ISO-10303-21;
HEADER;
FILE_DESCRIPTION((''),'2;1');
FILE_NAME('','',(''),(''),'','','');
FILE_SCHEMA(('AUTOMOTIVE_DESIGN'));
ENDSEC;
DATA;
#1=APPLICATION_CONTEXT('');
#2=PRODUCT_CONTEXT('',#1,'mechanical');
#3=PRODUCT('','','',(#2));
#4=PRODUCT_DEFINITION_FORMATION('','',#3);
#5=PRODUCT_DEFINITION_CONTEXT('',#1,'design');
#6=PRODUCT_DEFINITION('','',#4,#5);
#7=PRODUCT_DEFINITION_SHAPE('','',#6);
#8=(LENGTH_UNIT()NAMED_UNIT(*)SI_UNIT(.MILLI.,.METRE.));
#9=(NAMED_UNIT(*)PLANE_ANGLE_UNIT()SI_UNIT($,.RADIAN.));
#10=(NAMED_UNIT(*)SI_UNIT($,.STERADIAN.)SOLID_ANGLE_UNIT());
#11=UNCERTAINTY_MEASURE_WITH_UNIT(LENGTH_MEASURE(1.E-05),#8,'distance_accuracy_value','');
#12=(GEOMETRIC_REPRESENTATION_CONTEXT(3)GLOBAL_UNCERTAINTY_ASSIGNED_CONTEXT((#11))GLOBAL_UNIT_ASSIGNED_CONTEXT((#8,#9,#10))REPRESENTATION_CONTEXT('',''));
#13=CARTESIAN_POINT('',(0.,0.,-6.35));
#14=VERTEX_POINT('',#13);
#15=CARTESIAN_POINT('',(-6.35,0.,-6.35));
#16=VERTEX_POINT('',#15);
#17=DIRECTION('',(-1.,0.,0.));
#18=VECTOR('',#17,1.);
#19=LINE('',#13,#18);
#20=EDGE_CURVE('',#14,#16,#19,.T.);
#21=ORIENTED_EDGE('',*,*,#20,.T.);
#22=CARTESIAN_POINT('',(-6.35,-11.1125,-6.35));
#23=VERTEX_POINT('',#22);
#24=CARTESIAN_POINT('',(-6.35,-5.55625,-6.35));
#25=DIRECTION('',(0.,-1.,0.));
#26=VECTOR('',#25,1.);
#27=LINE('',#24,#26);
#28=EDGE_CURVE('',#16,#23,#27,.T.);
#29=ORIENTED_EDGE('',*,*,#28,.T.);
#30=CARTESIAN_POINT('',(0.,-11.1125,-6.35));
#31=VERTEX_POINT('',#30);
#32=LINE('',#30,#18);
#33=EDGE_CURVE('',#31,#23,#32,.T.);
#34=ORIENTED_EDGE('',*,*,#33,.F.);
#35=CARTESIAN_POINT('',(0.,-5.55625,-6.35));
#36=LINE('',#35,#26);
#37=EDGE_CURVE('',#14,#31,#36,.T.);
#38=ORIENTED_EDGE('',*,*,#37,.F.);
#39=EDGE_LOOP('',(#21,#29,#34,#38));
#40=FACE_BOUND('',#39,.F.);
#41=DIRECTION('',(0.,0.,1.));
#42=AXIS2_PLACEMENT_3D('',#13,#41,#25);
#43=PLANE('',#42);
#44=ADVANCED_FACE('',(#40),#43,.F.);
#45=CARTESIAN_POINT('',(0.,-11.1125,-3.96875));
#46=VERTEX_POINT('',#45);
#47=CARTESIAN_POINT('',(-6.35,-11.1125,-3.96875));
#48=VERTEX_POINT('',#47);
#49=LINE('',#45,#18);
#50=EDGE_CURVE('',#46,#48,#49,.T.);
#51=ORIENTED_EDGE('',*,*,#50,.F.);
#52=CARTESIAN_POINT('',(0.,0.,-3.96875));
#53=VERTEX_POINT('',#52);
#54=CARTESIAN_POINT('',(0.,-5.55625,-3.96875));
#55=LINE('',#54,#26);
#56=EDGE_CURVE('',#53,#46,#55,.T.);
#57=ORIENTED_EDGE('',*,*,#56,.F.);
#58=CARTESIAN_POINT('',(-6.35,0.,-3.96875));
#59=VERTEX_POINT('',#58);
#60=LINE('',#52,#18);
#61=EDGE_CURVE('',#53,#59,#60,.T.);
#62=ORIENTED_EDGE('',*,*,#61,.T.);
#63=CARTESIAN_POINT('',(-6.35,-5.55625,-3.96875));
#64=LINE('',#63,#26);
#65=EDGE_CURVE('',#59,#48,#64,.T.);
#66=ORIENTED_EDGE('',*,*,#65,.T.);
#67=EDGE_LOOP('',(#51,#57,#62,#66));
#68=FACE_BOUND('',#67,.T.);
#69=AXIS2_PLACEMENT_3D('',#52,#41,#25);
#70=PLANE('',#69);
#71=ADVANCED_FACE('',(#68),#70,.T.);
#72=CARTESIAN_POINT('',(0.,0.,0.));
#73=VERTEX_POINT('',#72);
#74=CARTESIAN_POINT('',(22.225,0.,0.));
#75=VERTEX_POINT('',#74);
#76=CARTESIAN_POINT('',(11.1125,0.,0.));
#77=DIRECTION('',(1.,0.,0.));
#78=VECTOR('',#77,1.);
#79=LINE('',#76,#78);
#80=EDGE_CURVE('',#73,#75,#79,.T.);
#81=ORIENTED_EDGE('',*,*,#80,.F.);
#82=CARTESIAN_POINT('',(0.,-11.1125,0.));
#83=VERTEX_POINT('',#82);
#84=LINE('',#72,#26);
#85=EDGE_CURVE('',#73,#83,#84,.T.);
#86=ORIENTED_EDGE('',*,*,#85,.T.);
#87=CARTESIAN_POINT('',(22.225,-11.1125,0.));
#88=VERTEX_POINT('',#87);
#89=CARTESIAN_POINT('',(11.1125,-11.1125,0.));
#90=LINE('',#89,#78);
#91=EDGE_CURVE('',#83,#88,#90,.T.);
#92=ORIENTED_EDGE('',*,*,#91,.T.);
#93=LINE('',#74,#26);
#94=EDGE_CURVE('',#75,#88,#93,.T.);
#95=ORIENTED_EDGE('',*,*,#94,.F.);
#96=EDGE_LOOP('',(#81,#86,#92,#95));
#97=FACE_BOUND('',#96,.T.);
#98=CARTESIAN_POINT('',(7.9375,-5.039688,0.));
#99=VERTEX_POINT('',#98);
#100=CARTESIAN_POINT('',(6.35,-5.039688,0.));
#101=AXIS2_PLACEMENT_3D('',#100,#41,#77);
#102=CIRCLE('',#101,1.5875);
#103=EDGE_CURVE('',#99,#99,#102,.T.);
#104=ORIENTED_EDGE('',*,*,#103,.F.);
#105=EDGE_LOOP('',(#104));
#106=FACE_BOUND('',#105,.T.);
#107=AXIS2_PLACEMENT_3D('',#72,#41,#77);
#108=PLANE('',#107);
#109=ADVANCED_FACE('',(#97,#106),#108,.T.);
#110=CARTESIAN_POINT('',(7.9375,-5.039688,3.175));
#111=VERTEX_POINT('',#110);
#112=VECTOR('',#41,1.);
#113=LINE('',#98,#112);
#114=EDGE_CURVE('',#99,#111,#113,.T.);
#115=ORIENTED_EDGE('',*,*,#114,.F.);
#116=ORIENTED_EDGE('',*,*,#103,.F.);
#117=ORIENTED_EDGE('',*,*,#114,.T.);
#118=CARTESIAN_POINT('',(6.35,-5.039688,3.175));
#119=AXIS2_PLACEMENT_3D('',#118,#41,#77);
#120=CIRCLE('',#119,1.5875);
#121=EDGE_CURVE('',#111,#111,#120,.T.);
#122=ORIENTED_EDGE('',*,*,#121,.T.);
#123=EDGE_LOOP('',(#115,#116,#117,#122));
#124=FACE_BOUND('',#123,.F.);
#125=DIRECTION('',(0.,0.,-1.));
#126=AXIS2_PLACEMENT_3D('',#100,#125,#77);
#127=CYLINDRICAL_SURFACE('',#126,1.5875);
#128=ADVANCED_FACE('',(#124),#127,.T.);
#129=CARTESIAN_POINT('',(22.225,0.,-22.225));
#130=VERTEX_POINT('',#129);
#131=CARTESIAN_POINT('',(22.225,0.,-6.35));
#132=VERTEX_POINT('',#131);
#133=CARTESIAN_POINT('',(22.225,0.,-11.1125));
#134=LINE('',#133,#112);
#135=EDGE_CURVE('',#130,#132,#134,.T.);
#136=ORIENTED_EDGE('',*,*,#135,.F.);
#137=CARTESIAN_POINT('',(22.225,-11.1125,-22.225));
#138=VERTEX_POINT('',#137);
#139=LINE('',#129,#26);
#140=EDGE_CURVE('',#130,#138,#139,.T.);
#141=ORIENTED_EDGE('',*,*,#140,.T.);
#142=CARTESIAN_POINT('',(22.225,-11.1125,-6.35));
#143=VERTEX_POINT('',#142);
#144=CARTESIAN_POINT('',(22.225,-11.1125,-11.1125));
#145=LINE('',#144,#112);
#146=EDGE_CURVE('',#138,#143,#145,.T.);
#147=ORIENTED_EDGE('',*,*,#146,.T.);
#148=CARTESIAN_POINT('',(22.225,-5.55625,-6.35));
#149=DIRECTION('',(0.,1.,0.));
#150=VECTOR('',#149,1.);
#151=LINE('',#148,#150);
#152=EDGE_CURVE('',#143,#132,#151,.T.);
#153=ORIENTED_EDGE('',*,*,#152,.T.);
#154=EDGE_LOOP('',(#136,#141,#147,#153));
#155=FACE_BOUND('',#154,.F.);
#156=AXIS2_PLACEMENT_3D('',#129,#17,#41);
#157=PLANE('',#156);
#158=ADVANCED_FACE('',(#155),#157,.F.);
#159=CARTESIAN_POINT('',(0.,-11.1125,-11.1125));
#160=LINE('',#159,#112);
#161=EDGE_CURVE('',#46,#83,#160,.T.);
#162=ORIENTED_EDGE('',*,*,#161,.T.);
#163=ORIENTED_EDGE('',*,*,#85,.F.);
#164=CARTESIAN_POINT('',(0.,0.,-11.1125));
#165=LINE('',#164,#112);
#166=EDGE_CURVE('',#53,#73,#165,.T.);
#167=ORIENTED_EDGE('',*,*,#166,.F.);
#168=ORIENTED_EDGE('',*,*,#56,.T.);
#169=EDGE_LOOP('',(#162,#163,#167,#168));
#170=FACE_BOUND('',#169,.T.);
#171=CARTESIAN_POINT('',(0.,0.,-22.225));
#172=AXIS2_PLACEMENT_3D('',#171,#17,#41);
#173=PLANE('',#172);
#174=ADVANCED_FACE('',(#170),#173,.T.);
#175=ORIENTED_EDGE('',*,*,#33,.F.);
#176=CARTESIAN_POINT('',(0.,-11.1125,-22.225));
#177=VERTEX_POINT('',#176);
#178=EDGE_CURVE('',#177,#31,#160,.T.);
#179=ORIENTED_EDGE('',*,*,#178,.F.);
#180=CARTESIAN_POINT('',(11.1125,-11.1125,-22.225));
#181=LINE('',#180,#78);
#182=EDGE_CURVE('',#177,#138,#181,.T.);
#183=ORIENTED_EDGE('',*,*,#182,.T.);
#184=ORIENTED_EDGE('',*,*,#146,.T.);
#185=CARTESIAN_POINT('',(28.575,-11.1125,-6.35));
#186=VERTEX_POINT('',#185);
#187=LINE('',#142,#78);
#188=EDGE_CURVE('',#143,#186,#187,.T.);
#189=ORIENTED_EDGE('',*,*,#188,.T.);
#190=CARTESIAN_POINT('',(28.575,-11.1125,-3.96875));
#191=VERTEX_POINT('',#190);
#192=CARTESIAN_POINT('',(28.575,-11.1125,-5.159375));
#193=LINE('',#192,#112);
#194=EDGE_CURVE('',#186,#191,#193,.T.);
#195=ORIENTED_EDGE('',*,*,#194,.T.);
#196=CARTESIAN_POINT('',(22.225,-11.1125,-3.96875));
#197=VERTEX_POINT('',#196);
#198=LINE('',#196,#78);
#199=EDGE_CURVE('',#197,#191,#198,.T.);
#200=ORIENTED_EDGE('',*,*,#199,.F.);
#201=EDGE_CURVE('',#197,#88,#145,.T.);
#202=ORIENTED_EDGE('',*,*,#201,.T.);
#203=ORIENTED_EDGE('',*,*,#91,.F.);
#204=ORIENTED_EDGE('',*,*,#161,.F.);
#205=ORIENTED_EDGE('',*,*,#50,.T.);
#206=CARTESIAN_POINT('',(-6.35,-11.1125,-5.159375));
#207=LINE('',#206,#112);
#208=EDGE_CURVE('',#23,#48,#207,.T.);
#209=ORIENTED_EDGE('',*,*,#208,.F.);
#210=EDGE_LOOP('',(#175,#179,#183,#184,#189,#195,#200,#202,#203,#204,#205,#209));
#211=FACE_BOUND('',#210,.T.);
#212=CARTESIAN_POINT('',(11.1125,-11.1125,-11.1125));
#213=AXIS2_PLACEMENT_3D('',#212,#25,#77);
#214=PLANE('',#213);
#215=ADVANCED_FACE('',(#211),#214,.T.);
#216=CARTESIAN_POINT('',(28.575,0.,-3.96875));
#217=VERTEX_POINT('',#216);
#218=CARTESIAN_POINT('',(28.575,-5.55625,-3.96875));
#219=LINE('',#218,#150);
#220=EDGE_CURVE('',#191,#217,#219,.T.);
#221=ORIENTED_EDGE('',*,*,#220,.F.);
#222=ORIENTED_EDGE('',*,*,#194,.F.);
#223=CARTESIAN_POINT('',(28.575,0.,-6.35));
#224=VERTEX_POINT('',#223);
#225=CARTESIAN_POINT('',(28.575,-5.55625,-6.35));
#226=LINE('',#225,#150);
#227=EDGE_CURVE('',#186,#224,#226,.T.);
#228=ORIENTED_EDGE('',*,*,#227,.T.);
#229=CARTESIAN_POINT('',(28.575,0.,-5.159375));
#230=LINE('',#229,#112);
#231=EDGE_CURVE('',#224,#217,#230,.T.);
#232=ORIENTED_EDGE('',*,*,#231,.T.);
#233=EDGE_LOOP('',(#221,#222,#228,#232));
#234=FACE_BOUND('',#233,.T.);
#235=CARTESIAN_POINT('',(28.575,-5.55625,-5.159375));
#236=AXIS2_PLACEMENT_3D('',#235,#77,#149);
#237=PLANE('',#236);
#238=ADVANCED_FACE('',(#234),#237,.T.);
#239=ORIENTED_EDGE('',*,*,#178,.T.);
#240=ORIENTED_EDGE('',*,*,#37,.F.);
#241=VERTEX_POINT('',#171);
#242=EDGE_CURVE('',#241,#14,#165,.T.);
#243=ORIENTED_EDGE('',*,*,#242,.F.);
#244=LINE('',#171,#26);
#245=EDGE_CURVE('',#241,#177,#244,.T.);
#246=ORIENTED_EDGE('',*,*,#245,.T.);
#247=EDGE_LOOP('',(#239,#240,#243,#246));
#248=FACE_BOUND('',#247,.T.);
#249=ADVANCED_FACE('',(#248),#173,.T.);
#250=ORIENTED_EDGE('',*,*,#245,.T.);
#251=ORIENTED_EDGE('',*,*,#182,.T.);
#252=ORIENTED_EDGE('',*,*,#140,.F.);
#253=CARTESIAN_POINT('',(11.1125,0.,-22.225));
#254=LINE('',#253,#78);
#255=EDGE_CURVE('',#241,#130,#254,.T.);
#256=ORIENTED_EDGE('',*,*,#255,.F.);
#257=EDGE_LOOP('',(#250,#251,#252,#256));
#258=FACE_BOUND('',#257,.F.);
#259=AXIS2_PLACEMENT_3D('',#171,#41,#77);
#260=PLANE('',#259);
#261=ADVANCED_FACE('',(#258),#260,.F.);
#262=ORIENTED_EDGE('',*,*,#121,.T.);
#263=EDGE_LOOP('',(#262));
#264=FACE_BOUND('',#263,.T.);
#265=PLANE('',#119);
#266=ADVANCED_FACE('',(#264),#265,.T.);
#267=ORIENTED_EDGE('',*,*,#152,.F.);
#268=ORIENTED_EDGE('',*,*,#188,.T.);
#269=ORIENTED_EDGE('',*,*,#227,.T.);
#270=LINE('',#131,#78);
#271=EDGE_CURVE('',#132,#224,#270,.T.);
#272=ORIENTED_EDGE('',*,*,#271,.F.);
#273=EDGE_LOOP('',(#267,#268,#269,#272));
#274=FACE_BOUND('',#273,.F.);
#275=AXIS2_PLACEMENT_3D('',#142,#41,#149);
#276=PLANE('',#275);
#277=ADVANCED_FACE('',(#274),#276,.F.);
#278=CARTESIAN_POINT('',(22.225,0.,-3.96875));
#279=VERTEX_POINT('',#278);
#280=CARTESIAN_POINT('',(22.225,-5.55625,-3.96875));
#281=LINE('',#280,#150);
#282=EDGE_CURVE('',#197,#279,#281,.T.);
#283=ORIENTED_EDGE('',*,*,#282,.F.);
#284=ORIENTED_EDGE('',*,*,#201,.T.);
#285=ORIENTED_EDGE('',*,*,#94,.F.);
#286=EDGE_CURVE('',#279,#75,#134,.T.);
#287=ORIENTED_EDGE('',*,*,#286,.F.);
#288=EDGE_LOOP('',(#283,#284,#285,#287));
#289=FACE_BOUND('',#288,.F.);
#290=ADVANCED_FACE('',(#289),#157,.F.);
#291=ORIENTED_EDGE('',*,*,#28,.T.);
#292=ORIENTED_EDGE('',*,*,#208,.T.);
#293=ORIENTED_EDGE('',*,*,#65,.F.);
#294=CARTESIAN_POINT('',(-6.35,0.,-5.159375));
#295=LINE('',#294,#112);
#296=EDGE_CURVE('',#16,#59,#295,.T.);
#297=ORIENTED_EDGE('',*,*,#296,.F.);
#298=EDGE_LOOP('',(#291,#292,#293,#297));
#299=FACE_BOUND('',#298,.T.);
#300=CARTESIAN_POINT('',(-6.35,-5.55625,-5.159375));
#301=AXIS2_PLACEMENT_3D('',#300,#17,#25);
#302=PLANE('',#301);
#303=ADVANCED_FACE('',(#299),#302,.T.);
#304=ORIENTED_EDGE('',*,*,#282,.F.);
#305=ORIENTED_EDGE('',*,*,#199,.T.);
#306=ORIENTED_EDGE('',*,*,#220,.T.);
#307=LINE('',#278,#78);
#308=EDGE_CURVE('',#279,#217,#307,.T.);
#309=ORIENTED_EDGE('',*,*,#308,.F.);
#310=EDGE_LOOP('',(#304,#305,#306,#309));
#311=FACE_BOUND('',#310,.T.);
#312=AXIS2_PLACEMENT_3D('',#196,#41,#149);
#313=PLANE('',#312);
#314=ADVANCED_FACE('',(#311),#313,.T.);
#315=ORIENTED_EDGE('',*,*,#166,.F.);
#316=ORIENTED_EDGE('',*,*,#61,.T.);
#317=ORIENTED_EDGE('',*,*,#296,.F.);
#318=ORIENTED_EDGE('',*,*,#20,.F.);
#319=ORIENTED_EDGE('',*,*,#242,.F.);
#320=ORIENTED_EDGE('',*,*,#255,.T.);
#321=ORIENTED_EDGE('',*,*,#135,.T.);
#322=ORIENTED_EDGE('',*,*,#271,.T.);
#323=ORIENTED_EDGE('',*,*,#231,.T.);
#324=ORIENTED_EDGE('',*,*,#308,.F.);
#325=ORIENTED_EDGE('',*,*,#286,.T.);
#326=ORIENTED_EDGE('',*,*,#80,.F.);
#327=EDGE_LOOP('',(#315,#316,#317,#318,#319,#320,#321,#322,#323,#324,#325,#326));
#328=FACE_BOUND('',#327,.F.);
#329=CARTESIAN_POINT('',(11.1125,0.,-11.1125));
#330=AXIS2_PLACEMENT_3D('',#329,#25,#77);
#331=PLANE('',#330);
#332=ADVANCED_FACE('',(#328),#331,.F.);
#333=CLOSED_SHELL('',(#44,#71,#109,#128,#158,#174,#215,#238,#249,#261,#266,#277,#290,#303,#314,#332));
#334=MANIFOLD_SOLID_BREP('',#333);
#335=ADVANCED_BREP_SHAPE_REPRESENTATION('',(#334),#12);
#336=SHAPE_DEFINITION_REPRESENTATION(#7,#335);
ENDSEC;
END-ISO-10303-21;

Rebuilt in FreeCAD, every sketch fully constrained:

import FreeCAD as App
import Part
import Sketcher
Q = App.Units.Quantity


def add_polygon(sketch, points):
    """Adds a closed chain of lines whose ends are joined by coincident constraints."""
    first, n = sketch.GeometryCount, len(points)
    for a, b in zip(points, points[1:] + points[:1]):
        sketch.addGeometry(Part.LineSegment(App.Vector(*a, 0), App.Vector(*b, 0)), False)
    for i in range(n):
        sketch.addConstraint(Sketcher.Constraint("Coincident", first + i, 2, first + (i + 1) % n, 1))

doc = App.newDocument("Part")
body = doc.addObject("PartDesign::Body", "Body")

# Sketch on XZ plane
sketch1 = body.newObject("Sketcher::SketchObject", "Sketch")
sketch1.AttachmentSupport = (doc.getObject("XZ_Plane"), [""])
sketch1.MapMode = "FlatFace"
add_polygon(sketch1, [(0, 0), (0, -22.225), (22.225, -22.225), (22.225, 0)])  # lines 0-3
sketch1.addConstraint([
    Sketcher.Constraint("Vertical", 0),
    Sketcher.Constraint("Horizontal", 1),
    Sketcher.Constraint("Vertical", 2),
    Sketcher.Constraint("Horizontal", 3),
    Sketcher.Constraint("Coincident", 3, 2, -1, 1),
    Sketcher.Constraint("Equal", 3, 0),
    Sketcher.Constraint("DistanceX", 1, 1, 1, 2, Q("0.875 in")),
])
pad1 = body.newObject("PartDesign::Pad", "Pad")
pad1.Profile = sketch1
pad1.Length = Q("0.4375 in")

# Sketch on YZ plane
sketch2 = body.newObject("Sketcher::SketchObject", "Sketch001")
sketch2.AttachmentSupport = (doc.getObject("YZ_Plane"), [""])
sketch2.MapMode = "FlatFace"
sketch2.AttachmentOffset = App.Placement(App.Vector(0, 0, 0.875 * 25.4), App.Rotation())
add_polygon(sketch2, [(-11.1125, -3.96875), (-11.1125, -6.35), (0, -6.35), (0, -3.96875)])  # lines 0-3
sketch2.addConstraint([
    Sketcher.Constraint("Vertical", 0),
    Sketcher.Constraint("Horizontal", 1),
    Sketcher.Constraint("Vertical", 2),
    Sketcher.Constraint("Horizontal", 3),
    Sketcher.Constraint("PointOnObject", 1, 2, -2),
    Sketcher.Constraint("DistanceX", 1, 1, 1, 2, Q("0.4375 in")),
    Sketcher.Constraint("DistanceY", 0, 2, 0, 1, Q("0.09375 in")),
    Sketcher.Constraint("DistanceY", 0, 2, -1, 1, Q("0.25 in")),
])
pad2 = body.newObject("PartDesign::Pad", "Pad001")
pad2.Profile = sketch2
pad2.Length = Q("0.25 in")

# Sketch on YZ plane
sketch3 = body.newObject("Sketcher::SketchObject", "Sketch002")
sketch3.AttachmentSupport = (doc.getObject("YZ_Plane"), [""])
sketch3.MapMode = "FlatFace"
add_polygon(sketch3, [(0, -3.96875), (0, -6.35), (-11.1125, -6.35), (-11.1125, -3.96875)])  # lines 0-3
sketch3.addConstraint([
    Sketcher.Constraint("Vertical", 0),
    Sketcher.Constraint("Horizontal", 1),
    Sketcher.Constraint("Vertical", 2),
    Sketcher.Constraint("Horizontal", 3),
    Sketcher.Constraint("PointOnObject", 0, 2, -2),
    Sketcher.Constraint("DistanceX", 1, 2, 1, 1, Q("0.4375 in")),
    Sketcher.Constraint("DistanceY", 0, 2, 0, 1, Q("0.09375 in")),
    Sketcher.Constraint("DistanceY", 0, 2, -1, 1, Q("0.25 in")),
])
pad3 = body.newObject("PartDesign::Pad", "Pad002")
pad3.Profile = sketch3
pad3.Length = Q("0.25 in")
pad3.Reversed = True

# Sketch on XY plane
sketch4 = body.newObject("Sketcher::SketchObject", "Sketch003")
sketch4.AttachmentSupport = (doc.getObject("XY_Plane"), [""])
sketch4.MapMode = "FlatFace"
sketch4.addGeometry(Part.Circle(App.Vector(6.35, -5.039688, 0), App.Vector(0, 0, 1), 1.5875), False)
sketch4.addConstraint([
    Sketcher.Constraint("Diameter", 0, Q("0.125 in")),
    Sketcher.Constraint("DistanceX", -1, 1, 0, 3, Q("0.25 in")),
    Sketcher.Constraint("DistanceY", 0, 3, -1, 1, 5.039688),
])
pad4 = body.newObject("PartDesign::Pad", "Pad003")
pad4.Profile = sketch4
pad4.Length = Q("0.125 in")

doc.recompute()
